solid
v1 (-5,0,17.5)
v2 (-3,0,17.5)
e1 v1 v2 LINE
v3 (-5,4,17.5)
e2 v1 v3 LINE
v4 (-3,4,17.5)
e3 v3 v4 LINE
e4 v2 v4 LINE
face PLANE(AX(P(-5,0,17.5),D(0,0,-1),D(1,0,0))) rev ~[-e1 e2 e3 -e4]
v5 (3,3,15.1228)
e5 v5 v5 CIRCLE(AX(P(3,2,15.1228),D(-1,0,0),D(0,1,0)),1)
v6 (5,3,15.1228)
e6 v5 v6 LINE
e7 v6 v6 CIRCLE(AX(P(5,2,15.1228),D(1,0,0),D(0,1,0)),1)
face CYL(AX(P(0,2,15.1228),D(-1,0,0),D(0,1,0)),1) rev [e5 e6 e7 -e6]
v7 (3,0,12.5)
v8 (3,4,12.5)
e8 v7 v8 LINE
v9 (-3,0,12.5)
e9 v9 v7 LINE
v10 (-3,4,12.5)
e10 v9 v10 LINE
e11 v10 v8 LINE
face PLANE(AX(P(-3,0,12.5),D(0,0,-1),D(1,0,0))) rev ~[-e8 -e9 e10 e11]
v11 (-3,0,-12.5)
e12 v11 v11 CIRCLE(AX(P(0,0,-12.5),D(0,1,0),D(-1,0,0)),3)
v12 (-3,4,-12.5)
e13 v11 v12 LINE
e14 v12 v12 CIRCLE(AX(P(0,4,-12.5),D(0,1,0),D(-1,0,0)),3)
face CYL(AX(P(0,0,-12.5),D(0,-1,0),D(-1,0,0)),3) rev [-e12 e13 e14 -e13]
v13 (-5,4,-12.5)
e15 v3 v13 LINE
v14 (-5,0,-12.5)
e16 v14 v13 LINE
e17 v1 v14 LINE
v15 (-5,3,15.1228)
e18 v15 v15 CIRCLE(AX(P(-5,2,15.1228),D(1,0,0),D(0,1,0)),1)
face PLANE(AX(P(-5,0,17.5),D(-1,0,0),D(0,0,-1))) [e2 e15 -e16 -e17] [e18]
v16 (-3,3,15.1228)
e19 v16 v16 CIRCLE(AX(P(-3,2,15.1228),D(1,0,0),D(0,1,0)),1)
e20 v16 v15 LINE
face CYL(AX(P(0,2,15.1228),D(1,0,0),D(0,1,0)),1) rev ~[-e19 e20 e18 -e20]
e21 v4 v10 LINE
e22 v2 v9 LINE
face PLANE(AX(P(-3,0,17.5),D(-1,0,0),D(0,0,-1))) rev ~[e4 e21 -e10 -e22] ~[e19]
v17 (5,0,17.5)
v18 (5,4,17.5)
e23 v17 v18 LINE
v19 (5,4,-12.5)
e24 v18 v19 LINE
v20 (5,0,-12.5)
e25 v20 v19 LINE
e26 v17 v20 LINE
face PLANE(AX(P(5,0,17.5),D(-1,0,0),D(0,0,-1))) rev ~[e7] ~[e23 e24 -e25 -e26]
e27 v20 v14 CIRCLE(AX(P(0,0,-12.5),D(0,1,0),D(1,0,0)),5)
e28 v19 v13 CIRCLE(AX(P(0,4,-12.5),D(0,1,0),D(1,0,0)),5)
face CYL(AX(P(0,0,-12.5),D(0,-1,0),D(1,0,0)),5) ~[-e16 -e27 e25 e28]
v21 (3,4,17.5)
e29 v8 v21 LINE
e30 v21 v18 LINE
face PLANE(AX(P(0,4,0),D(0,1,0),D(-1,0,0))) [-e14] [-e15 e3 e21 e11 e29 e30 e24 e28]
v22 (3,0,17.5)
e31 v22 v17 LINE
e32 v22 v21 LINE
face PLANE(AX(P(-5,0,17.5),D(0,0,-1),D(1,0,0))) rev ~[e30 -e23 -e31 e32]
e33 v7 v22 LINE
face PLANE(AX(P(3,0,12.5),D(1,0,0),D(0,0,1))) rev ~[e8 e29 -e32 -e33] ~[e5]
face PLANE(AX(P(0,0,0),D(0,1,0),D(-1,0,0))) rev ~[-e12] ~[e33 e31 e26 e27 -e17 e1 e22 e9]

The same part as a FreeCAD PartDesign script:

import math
import FreeCAD as App
import Part
import Sketcher

doc = App.newDocument("Part")
body = doc.addObject("PartDesign::Body", "Body")

sketch1 = body.newObject("Sketcher::SketchObject", "Sketch")
sketch1.AttachmentSupport = (doc.getObject("XZ_Plane"), [""])
sketch1.MapMode = "FlatFace"
sketch1.addGeometry([
    Part.LineSegment(App.Vector(5, 17.5, 0), App.Vector(5, -12.5, 0)),
    Part.ArcOfCircle(Part.Circle(App.Vector(0, -12.5, 0), App.Vector(0, 0, 1), 5), math.radians(180), math.radians(360)),
    Part.LineSegment(App.Vector(-5, -12.5, 0), App.Vector(-5, 17.5, 0)),
    Part.LineSegment(App.Vector(-5, 17.5, 0), App.Vector(5, 17.5, 0)),
], False)
sketch1.addConstraint([
    Sketcher.Constraint("Tangent", 0, 2, 1, 2),
    Sketcher.Constraint("Tangent", 1, 1, 2, 1),
    Sketcher.Constraint("Coincident", 2, 2, 3, 1),
    Sketcher.Constraint("Coincident", 3, 2, 0, 1),
    Sketcher.Constraint("Vertical", 0),
    Sketcher.Constraint("Vertical", 2),
    Sketcher.Constraint("Horizontal", 3),
    Sketcher.Constraint("PointOnObject", 1, 3, -2),
    Sketcher.Constraint("Radius", 1, 5.0),
    Sketcher.Constraint("DistanceY", 0, 2, 0, 1, 30.0),
    Sketcher.Constraint("DistanceY", 1, 3, -1, 1, 12.5),
])
pad1 = body.newObject("PartDesign::Pad", "Pad")
pad1.Profile = sketch1
pad1.Length = 4
pad1.Reversed = True

sketch2 = body.newObject("Sketcher::SketchObject", "Sketch001")
sketch2.AttachmentSupport = (doc.getObject("XZ_Plane"), [""])
sketch2.MapMode = "FlatFace"
sketch2.addGeometry(Part.Circle(App.Vector(0, -12.5, 0), App.Vector(0, 0, 1), 3), False)
sketch2.addConstraint([
    Sketcher.Constraint("PointOnObject", 0, 3, -2),
    Sketcher.Constraint("Diameter", 0, 6.0),
    Sketcher.Constraint("DistanceY", 0, 3, -1, 1, 12.5),
])
pocket1 = body.newObject("PartDesign::Pocket", "Pocket")
pocket1.Profile = sketch2
pocket1.Length = 4

sketch3 = body.newObject("Sketcher::SketchObject", "Sketch002")
sketch3.AttachmentSupport = (doc.getObject("XZ_Plane"), [""])
sketch3.MapMode = "FlatFace"
sketch3.addGeometry([
    Part.LineSegment(App.Vector(-3, 17.5, 0), App.Vector(3, 17.5, 0)),
    Part.LineSegment(App.Vector(3, 17.5, 0), App.Vector(3, 12.5, 0)),
    Part.LineSegment(App.Vector(3, 12.5, 0), App.Vector(-3, 12.5, 0)),
    Part.LineSegment(App.Vector(-3, 12.5, 0), App.Vector(-3, 17.5, 0)),
], False)
sketch3.addConstraint([
    Sketcher.Constraint("Coincident", 0, 2, 1, 1),
    Sketcher.Constraint("Coincident", 1, 2, 2, 1),
    Sketcher.Constraint("Coincident", 2, 2, 3, 1),
    Sketcher.Constraint("Coincident", 3, 2, 0, 1),
    Sketcher.Constraint("Horizontal", 0),
    Sketcher.Constraint("Vertical", 1),
    Sketcher.Constraint("Horizontal", 2),
    Sketcher.Constraint("Vertical", 3),
    Sketcher.Constraint("DistanceX", 0, 1, 0, 2, 6.0),
    Sketcher.Constraint("DistanceY", 1, 2, 1, 1, 5.0),
    Sketcher.Constraint("DistanceX", -1, 1, 0, 2, 3.0),
    Sketcher.Constraint("DistanceY", -1, 1, 0, 2, 17.5),
])
pocket2 = body.newObject("PartDesign::Pocket", "Pocket001")
pocket2.Profile = sketch3
pocket2.Length = 4

sketch4 = body.newObject("Sketcher::SketchObject", "Sketch003")
sketch4.AttachmentSupport = (doc.getObject("YZ_Plane"), [""])
sketch4.MapMode = "FlatFace"
sketch4.addGeometry(Part.Circle(App.Vector(2, 15.1228, 0), App.Vector(0, 0, 1), 1), False)
sketch4.addConstraint([
    Sketcher.Constraint("Diameter", 0, 2.0),
    Sketcher.Constraint("DistanceX", -1, 1, 0, 3, 2.0),
    Sketcher.Constraint("DistanceY", -1, 1, 0, 3, 15.1228),
])
pocket3 = body.newObject("PartDesign::Pocket", "Pocket002")
pocket3.Profile = sketch4
pocket3.Length = 10
pocket3.Midplane = True

doc.recompute()
